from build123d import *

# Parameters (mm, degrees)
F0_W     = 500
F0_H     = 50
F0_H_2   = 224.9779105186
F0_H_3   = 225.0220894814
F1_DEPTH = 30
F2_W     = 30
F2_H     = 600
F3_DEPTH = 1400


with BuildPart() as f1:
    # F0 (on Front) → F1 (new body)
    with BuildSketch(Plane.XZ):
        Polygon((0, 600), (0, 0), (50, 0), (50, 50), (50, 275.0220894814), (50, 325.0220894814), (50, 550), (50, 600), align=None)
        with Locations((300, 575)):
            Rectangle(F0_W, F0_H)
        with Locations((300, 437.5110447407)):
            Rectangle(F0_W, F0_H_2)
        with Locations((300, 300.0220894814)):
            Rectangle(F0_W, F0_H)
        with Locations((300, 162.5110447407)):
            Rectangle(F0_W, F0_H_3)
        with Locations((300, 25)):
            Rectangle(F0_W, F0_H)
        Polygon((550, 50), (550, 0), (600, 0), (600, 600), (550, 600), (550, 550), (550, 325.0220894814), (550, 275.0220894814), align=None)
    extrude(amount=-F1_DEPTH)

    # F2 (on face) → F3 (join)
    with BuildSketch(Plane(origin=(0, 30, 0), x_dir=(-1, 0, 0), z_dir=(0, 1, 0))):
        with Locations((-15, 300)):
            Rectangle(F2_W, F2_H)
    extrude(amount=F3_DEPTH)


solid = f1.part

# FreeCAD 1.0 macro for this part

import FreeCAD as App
import Part
import Sketcher
from FreeCAD import Vector

doc = App.newDocument("Part")
body = doc.addObject("PartDesign::Body", "Body")

# Sketch on XZ plane
sketch1 = doc.addObject("Sketcher::SketchObject", "Sketch")
body.addObject(sketch1)
sketch1.AttachmentSupport = (doc.XZ_Plane, [""])
sketch1.MapMode = "FlatFace"
sketch1.addGeometry([
    Part.LineSegment(Vector(0, 600, 0), Vector(0, 0, 0)),
    Part.LineSegment(Vector(0, 0, 0), Vector(600, 0, 0)),
    Part.LineSegment(Vector(600, 0, 0), Vector(600, 600, 0)),
    Part.LineSegment(Vector(600, 600, 0), Vector(0, 600, 0)),
], False)
sketch1.addConstraint([
    Sketcher.Constraint("Coincident", 0, 2, 1, 1),
    Sketcher.Constraint("Coincident", 1, 2, 2, 1),
    Sketcher.Constraint("Coincident", 2, 2, 3, 1),
    Sketcher.Constraint("Coincident", 3, 2, 0, 1),
    Sketcher.Constraint("Vertical", 0),
    Sketcher.Constraint("Horizontal", 1),
    Sketcher.Constraint("Vertical", 2),
    Sketcher.Constraint("Horizontal", 3),
    Sketcher.Constraint("Coincident", 0, 2, -1, 1),
    Sketcher.Constraint("Equal", 3, 0),
    Sketcher.Constraint("DistanceX", 1, 1, 1, 2, 600.0),
])
pad1 = doc.addObject("PartDesign::Pad", "Pad")
body.addObject(pad1)
pad1.Profile = sketch1
pad1.Length = 30
pad1.Reversed = True

# Sketch on XZ plane
sketch2 = doc.addObject("Sketcher::SketchObject", "Sketch001")
body.addObject(sketch2)
sketch2.AttachmentSupport = (doc.XZ_Plane, [""])
sketch2.MapMode = "FlatFace"
sketch2.AttachmentOffset = App.Placement(Vector(0, 0, -30), App.Rotation())
sketch2.addGeometry([
    Part.LineSegment(Vector(30, 600, 0), Vector(30, 0, 0)),
    Part.LineSegment(Vector(30, 0, 0), Vector(0, 0, 0)),
    Part.LineSegment(Vector(0, 0, 0), Vector(0, 600, 0)),
    Part.LineSegment(Vector(0, 600, 0), Vector(30, 600, 0)),
], False)
sketch2.addConstraint([
    Sketcher.Constraint("Coincident", 0, 2, 1, 1),
    Sketcher.Constraint("Coincident", 1, 2, 2, 1),
    Sketcher.Constraint("Coincident", 2, 2, 3, 1),
    Sketcher.Constraint("Coincident", 3, 2, 0, 1),
    Sketcher.Constraint("Vertical", 0),
    Sketcher.Constraint("Horizontal", 1),
    Sketcher.Constraint("Vertical", 2),
    Sketcher.Constraint("Horizontal", 3),
    Sketcher.Constraint("Coincident", 1, 2, -1, 1),
    Sketcher.Constraint("DistanceX", 1, 2, 1, 1, 30.0),
    Sketcher.Constraint("DistanceY", 0, 2, 0, 1, 600.0),
])
pad2 = doc.addObject("PartDesign::Pad", "Pad001")
body.addObject(pad2)
pad2.Profile = sketch2
pad2.Length = 1400
pad2.Reversed = True

doc.recompute()
